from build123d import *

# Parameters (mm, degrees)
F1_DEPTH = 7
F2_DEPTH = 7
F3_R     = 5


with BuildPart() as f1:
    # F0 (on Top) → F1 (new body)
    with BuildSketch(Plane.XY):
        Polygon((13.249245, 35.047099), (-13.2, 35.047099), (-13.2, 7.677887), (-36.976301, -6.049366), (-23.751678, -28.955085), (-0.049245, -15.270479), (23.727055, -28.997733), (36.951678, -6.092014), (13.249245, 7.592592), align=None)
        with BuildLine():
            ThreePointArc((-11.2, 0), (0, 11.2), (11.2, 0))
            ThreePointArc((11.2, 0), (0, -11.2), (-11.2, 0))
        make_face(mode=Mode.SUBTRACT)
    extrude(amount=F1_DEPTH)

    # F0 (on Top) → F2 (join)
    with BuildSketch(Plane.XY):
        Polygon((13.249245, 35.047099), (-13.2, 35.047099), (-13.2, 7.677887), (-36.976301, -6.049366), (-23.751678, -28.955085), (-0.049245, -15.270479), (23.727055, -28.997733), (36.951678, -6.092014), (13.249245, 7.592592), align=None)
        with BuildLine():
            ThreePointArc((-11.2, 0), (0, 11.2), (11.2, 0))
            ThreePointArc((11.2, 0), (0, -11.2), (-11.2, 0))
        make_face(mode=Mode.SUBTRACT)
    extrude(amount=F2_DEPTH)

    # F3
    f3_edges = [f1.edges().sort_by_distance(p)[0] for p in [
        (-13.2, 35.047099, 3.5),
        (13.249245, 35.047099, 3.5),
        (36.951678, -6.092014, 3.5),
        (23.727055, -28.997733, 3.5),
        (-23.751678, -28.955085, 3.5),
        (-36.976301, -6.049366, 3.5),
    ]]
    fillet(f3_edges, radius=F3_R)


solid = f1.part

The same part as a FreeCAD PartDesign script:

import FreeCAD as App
import Part
import Sketcher
Q = App.Units.Quantity


def edges_at(feature, points):
    """Names of the edges that pass closest to the given points."""
    edges = feature.Shape.Edges
    near = lambda p: min(range(len(edges)), key=lambda i: edges[i].distToShape(Part.Vertex(*p))[0])
    return sorted({f"Edge{near(p) + 1}" for p in points})

doc = App.newDocument("Part")
body = doc.addObject("PartDesign::Body", "Body")

sketch1 = body.newObject("Sketcher::SketchObject", "Sketch")
sketch1.AttachmentSupport = (doc.getObject("XY_Plane"), [""])
sketch1.MapMode = "FlatFace"
sketch1.addGeometry([
    Part.LineSegment(App.Vector(13, 35, 0), App.Vector(-13, 35, 0)),
    Part.LineSegment(App.Vector(-13, 35, 0), App.Vector(-13, 8, 0)),
    Part.LineSegment(App.Vector(-13, 8, 0), App.Vector(-37, -6, 0)),
    Part.LineSegment(App.Vector(-37, -6, 0), App.Vector(-24, -29, 0)),
    Part.LineSegment(App.Vector(-24, -29, 0), App.Vector(0, -15, 0)),
    Part.LineSegment(App.Vector(0, -15, 0), App.Vector(24, -29, 0)),
    Part.LineSegment(App.Vector(24, -29, 0), App.Vector(37, -6, 0)),
    Part.LineSegment(App.Vector(37, -6, 0), App.Vector(13, 8, 0)),
    Part.LineSegment(App.Vector(13, 8, 0), App.Vector(13, 35, 0)),
    Part.Circle(App.Vector(0, 0, 0), App.Vector(0, 0, 1), 11),
], False)
sketch1.addConstraint([
    Sketcher.Constraint("Coincident", 0, 2, 1, 1),
    Sketcher.Constraint("Coincident", 1, 2, 2, 1),
    Sketcher.Constraint("Coincident", 2, 2, 3, 1),
    Sketcher.Constraint("Coincident", 3, 2, 4, 1),
    Sketcher.Constraint("Coincident", 4, 2, 5, 1),
    Sketcher.Constraint("Coincident", 5, 2, 6, 1),
    Sketcher.Constraint("Coincident", 6, 2, 7, 1),
    Sketcher.Constraint("Coincident", 7, 2, 8, 1),
    Sketcher.Constraint("Coincident", 8, 2, 0, 1),
    Sketcher.Constraint("Horizontal", 0),
    Sketcher.Constraint("Vertical", 1),
    Sketcher.Constraint("Vertical", 8),
    Sketcher.Constraint("Coincident", 9, 3, -1, 1),
    Sketcher.Constraint("Perpendicular", 2, 3),
    Sketcher.Constraint("Perpendicular", 3, 4),
    Sketcher.Constraint("Perpendicular", 5, 6),
    Sketcher.Constraint("Perpendicular", 6, 7),
    Sketcher.Constraint("Equal", 2, 5),
    Sketcher.Constraint("Equal", 3, 6),
    Sketcher.Constraint("Equal", 4, 7),
    Sketcher.Constraint("Diameter", 9, 22.4),
    Sketcher.Constraint("Angle", 2, Q("-150.000001 deg")),
    Sketcher.Constraint("Angle", 5, Q("-30.000001 deg")),
    Sketcher.Constraint("DistanceX", 0, 2, -1, 1, 13.2),
    Sketcher.Constraint("DistanceY", -1, 1, 0, 2, 35.047099),
    Sketcher.Constraint("DistanceX", 2, 2, -1, 1, 36.976301),
    Sketcher.Constraint("DistanceY", 6, 2, 1, 2, 13.769901),
    Sketcher.Constraint("DistanceX", 0, 2, 0, 1, 26.449245),
    Sketcher.Constraint("DistanceY", 1, 2, 1, 1, 27.369212),
])
pad1 = body.newObject("PartDesign::Pad", "Pad")
pad1.Profile = sketch1
pad1.Length = 7

sketch2 = body.newObject("Sketcher::SketchObject", "Sketch001")
sketch2.AttachmentSupport = (doc.getObject("XY_Plane"), [""])
sketch2.MapMode = "FlatFace"
sketch2.addGeometry([
    Part.LineSegment(App.Vector(13, 35, 0), App.Vector(-13, 35, 0)),
    Part.LineSegment(App.Vector(-13, 35, 0), App.Vector(-13, 8, 0)),
    Part.LineSegment(App.Vector(-13, 8, 0), App.Vector(-37, -6, 0)),
    Part.LineSegment(App.Vector(-37, -6, 0), App.Vector(-24, -29, 0)),
    Part.LineSegment(App.Vector(-24, -29, 0), App.Vector(0, -15, 0)),
    Part.LineSegment(App.Vector(0, -15, 0), App.Vector(24, -29, 0)),
    Part.LineSegment(App.Vector(24, -29, 0), App.Vector(37, -6, 0)),
    Part.LineSegment(App.Vector(37, -6, 0), App.Vector(13, 8, 0)),
    Part.LineSegment(App.Vector(13, 8, 0), App.Vector(13, 35, 0)),
    Part.Circle(App.Vector(0, 0, 0), App.Vector(0, 0, 1), 11),
], False)
sketch2.addConstraint([
    Sketcher.Constraint("Coincident", 0, 2, 1, 1),
    Sketcher.Constraint("Coincident", 1, 2, 2, 1),
    Sketcher.Constraint("Coincident", 2, 2, 3, 1),
    Sketcher.Constraint("Coincident", 3, 2, 4, 1),
    Sketcher.Constraint("Coincident", 4, 2, 5, 1),
    Sketcher.Constraint("Coincident", 5, 2, 6, 1),
    Sketcher.Constraint("Coincident", 6, 2, 7, 1),
    Sketcher.Constraint("Coincident", 7, 2, 8, 1),
    Sketcher.Constraint("Coincident", 8, 2, 0, 1),
    Sketcher.Constraint("Horizontal", 0),
    Sketcher.Constraint("Vertical", 1),
    Sketcher.Constraint("Vertical", 8),
    Sketcher.Constraint("Coincident", 9, 3, -1, 1),
    Sketcher.Constraint("Perpendicular", 2, 3),
    Sketcher.Constraint("Perpendicular", 3, 4),
    Sketcher.Constraint("Perpendicular", 5, 6),
    Sketcher.Constraint("Perpendicular", 6, 7),
    Sketcher.Constraint("Equal", 2, 5),
    Sketcher.Constraint("Equal", 3, 6),
    Sketcher.Constraint("Equal", 4, 7),
    Sketcher.Constraint("Diameter", 9, 22.4),
    Sketcher.Constraint("Angle", 2, Q("-150.000001 deg")),
    Sketcher.Constraint("Angle", 5, Q("-30.000001 deg")),
    Sketcher.Constraint("DistanceX", 0, 2, -1, 1, 13.2),
    Sketcher.Constraint("DistanceY", -1, 1, 0, 2, 35.047099),
    Sketcher.Constraint("DistanceX", 2, 2, -1, 1, 36.976301),
    Sketcher.Constraint("DistanceY", 6, 2, 1, 2, 13.769901),
    Sketcher.Constraint("DistanceX", 0, 2, 0, 1, 26.449245),
    Sketcher.Constraint("DistanceY", 1, 2, 1, 1, 27.369212),
])
pad2 = body.newObject("PartDesign::Pad", "Pad001")
pad2.Profile = sketch2
pad2.Length = 7
doc.recompute()

fillet = body.newObject("PartDesign::Fillet", "Fillet")
fillet.Base = (pad2, edges_at(pad2, [
    (-13.2, 35.047, 3.5),
    (13.249, 35.047, 3.5),
    (36.952, -6.092, 3.5),
    (23.727, -28.998, 3.5),
    (-23.752, -28.955, 3.5),
    (-36.976, -6.049, 3.5),
]))
fillet.Radius = 5

doc.recompute()
